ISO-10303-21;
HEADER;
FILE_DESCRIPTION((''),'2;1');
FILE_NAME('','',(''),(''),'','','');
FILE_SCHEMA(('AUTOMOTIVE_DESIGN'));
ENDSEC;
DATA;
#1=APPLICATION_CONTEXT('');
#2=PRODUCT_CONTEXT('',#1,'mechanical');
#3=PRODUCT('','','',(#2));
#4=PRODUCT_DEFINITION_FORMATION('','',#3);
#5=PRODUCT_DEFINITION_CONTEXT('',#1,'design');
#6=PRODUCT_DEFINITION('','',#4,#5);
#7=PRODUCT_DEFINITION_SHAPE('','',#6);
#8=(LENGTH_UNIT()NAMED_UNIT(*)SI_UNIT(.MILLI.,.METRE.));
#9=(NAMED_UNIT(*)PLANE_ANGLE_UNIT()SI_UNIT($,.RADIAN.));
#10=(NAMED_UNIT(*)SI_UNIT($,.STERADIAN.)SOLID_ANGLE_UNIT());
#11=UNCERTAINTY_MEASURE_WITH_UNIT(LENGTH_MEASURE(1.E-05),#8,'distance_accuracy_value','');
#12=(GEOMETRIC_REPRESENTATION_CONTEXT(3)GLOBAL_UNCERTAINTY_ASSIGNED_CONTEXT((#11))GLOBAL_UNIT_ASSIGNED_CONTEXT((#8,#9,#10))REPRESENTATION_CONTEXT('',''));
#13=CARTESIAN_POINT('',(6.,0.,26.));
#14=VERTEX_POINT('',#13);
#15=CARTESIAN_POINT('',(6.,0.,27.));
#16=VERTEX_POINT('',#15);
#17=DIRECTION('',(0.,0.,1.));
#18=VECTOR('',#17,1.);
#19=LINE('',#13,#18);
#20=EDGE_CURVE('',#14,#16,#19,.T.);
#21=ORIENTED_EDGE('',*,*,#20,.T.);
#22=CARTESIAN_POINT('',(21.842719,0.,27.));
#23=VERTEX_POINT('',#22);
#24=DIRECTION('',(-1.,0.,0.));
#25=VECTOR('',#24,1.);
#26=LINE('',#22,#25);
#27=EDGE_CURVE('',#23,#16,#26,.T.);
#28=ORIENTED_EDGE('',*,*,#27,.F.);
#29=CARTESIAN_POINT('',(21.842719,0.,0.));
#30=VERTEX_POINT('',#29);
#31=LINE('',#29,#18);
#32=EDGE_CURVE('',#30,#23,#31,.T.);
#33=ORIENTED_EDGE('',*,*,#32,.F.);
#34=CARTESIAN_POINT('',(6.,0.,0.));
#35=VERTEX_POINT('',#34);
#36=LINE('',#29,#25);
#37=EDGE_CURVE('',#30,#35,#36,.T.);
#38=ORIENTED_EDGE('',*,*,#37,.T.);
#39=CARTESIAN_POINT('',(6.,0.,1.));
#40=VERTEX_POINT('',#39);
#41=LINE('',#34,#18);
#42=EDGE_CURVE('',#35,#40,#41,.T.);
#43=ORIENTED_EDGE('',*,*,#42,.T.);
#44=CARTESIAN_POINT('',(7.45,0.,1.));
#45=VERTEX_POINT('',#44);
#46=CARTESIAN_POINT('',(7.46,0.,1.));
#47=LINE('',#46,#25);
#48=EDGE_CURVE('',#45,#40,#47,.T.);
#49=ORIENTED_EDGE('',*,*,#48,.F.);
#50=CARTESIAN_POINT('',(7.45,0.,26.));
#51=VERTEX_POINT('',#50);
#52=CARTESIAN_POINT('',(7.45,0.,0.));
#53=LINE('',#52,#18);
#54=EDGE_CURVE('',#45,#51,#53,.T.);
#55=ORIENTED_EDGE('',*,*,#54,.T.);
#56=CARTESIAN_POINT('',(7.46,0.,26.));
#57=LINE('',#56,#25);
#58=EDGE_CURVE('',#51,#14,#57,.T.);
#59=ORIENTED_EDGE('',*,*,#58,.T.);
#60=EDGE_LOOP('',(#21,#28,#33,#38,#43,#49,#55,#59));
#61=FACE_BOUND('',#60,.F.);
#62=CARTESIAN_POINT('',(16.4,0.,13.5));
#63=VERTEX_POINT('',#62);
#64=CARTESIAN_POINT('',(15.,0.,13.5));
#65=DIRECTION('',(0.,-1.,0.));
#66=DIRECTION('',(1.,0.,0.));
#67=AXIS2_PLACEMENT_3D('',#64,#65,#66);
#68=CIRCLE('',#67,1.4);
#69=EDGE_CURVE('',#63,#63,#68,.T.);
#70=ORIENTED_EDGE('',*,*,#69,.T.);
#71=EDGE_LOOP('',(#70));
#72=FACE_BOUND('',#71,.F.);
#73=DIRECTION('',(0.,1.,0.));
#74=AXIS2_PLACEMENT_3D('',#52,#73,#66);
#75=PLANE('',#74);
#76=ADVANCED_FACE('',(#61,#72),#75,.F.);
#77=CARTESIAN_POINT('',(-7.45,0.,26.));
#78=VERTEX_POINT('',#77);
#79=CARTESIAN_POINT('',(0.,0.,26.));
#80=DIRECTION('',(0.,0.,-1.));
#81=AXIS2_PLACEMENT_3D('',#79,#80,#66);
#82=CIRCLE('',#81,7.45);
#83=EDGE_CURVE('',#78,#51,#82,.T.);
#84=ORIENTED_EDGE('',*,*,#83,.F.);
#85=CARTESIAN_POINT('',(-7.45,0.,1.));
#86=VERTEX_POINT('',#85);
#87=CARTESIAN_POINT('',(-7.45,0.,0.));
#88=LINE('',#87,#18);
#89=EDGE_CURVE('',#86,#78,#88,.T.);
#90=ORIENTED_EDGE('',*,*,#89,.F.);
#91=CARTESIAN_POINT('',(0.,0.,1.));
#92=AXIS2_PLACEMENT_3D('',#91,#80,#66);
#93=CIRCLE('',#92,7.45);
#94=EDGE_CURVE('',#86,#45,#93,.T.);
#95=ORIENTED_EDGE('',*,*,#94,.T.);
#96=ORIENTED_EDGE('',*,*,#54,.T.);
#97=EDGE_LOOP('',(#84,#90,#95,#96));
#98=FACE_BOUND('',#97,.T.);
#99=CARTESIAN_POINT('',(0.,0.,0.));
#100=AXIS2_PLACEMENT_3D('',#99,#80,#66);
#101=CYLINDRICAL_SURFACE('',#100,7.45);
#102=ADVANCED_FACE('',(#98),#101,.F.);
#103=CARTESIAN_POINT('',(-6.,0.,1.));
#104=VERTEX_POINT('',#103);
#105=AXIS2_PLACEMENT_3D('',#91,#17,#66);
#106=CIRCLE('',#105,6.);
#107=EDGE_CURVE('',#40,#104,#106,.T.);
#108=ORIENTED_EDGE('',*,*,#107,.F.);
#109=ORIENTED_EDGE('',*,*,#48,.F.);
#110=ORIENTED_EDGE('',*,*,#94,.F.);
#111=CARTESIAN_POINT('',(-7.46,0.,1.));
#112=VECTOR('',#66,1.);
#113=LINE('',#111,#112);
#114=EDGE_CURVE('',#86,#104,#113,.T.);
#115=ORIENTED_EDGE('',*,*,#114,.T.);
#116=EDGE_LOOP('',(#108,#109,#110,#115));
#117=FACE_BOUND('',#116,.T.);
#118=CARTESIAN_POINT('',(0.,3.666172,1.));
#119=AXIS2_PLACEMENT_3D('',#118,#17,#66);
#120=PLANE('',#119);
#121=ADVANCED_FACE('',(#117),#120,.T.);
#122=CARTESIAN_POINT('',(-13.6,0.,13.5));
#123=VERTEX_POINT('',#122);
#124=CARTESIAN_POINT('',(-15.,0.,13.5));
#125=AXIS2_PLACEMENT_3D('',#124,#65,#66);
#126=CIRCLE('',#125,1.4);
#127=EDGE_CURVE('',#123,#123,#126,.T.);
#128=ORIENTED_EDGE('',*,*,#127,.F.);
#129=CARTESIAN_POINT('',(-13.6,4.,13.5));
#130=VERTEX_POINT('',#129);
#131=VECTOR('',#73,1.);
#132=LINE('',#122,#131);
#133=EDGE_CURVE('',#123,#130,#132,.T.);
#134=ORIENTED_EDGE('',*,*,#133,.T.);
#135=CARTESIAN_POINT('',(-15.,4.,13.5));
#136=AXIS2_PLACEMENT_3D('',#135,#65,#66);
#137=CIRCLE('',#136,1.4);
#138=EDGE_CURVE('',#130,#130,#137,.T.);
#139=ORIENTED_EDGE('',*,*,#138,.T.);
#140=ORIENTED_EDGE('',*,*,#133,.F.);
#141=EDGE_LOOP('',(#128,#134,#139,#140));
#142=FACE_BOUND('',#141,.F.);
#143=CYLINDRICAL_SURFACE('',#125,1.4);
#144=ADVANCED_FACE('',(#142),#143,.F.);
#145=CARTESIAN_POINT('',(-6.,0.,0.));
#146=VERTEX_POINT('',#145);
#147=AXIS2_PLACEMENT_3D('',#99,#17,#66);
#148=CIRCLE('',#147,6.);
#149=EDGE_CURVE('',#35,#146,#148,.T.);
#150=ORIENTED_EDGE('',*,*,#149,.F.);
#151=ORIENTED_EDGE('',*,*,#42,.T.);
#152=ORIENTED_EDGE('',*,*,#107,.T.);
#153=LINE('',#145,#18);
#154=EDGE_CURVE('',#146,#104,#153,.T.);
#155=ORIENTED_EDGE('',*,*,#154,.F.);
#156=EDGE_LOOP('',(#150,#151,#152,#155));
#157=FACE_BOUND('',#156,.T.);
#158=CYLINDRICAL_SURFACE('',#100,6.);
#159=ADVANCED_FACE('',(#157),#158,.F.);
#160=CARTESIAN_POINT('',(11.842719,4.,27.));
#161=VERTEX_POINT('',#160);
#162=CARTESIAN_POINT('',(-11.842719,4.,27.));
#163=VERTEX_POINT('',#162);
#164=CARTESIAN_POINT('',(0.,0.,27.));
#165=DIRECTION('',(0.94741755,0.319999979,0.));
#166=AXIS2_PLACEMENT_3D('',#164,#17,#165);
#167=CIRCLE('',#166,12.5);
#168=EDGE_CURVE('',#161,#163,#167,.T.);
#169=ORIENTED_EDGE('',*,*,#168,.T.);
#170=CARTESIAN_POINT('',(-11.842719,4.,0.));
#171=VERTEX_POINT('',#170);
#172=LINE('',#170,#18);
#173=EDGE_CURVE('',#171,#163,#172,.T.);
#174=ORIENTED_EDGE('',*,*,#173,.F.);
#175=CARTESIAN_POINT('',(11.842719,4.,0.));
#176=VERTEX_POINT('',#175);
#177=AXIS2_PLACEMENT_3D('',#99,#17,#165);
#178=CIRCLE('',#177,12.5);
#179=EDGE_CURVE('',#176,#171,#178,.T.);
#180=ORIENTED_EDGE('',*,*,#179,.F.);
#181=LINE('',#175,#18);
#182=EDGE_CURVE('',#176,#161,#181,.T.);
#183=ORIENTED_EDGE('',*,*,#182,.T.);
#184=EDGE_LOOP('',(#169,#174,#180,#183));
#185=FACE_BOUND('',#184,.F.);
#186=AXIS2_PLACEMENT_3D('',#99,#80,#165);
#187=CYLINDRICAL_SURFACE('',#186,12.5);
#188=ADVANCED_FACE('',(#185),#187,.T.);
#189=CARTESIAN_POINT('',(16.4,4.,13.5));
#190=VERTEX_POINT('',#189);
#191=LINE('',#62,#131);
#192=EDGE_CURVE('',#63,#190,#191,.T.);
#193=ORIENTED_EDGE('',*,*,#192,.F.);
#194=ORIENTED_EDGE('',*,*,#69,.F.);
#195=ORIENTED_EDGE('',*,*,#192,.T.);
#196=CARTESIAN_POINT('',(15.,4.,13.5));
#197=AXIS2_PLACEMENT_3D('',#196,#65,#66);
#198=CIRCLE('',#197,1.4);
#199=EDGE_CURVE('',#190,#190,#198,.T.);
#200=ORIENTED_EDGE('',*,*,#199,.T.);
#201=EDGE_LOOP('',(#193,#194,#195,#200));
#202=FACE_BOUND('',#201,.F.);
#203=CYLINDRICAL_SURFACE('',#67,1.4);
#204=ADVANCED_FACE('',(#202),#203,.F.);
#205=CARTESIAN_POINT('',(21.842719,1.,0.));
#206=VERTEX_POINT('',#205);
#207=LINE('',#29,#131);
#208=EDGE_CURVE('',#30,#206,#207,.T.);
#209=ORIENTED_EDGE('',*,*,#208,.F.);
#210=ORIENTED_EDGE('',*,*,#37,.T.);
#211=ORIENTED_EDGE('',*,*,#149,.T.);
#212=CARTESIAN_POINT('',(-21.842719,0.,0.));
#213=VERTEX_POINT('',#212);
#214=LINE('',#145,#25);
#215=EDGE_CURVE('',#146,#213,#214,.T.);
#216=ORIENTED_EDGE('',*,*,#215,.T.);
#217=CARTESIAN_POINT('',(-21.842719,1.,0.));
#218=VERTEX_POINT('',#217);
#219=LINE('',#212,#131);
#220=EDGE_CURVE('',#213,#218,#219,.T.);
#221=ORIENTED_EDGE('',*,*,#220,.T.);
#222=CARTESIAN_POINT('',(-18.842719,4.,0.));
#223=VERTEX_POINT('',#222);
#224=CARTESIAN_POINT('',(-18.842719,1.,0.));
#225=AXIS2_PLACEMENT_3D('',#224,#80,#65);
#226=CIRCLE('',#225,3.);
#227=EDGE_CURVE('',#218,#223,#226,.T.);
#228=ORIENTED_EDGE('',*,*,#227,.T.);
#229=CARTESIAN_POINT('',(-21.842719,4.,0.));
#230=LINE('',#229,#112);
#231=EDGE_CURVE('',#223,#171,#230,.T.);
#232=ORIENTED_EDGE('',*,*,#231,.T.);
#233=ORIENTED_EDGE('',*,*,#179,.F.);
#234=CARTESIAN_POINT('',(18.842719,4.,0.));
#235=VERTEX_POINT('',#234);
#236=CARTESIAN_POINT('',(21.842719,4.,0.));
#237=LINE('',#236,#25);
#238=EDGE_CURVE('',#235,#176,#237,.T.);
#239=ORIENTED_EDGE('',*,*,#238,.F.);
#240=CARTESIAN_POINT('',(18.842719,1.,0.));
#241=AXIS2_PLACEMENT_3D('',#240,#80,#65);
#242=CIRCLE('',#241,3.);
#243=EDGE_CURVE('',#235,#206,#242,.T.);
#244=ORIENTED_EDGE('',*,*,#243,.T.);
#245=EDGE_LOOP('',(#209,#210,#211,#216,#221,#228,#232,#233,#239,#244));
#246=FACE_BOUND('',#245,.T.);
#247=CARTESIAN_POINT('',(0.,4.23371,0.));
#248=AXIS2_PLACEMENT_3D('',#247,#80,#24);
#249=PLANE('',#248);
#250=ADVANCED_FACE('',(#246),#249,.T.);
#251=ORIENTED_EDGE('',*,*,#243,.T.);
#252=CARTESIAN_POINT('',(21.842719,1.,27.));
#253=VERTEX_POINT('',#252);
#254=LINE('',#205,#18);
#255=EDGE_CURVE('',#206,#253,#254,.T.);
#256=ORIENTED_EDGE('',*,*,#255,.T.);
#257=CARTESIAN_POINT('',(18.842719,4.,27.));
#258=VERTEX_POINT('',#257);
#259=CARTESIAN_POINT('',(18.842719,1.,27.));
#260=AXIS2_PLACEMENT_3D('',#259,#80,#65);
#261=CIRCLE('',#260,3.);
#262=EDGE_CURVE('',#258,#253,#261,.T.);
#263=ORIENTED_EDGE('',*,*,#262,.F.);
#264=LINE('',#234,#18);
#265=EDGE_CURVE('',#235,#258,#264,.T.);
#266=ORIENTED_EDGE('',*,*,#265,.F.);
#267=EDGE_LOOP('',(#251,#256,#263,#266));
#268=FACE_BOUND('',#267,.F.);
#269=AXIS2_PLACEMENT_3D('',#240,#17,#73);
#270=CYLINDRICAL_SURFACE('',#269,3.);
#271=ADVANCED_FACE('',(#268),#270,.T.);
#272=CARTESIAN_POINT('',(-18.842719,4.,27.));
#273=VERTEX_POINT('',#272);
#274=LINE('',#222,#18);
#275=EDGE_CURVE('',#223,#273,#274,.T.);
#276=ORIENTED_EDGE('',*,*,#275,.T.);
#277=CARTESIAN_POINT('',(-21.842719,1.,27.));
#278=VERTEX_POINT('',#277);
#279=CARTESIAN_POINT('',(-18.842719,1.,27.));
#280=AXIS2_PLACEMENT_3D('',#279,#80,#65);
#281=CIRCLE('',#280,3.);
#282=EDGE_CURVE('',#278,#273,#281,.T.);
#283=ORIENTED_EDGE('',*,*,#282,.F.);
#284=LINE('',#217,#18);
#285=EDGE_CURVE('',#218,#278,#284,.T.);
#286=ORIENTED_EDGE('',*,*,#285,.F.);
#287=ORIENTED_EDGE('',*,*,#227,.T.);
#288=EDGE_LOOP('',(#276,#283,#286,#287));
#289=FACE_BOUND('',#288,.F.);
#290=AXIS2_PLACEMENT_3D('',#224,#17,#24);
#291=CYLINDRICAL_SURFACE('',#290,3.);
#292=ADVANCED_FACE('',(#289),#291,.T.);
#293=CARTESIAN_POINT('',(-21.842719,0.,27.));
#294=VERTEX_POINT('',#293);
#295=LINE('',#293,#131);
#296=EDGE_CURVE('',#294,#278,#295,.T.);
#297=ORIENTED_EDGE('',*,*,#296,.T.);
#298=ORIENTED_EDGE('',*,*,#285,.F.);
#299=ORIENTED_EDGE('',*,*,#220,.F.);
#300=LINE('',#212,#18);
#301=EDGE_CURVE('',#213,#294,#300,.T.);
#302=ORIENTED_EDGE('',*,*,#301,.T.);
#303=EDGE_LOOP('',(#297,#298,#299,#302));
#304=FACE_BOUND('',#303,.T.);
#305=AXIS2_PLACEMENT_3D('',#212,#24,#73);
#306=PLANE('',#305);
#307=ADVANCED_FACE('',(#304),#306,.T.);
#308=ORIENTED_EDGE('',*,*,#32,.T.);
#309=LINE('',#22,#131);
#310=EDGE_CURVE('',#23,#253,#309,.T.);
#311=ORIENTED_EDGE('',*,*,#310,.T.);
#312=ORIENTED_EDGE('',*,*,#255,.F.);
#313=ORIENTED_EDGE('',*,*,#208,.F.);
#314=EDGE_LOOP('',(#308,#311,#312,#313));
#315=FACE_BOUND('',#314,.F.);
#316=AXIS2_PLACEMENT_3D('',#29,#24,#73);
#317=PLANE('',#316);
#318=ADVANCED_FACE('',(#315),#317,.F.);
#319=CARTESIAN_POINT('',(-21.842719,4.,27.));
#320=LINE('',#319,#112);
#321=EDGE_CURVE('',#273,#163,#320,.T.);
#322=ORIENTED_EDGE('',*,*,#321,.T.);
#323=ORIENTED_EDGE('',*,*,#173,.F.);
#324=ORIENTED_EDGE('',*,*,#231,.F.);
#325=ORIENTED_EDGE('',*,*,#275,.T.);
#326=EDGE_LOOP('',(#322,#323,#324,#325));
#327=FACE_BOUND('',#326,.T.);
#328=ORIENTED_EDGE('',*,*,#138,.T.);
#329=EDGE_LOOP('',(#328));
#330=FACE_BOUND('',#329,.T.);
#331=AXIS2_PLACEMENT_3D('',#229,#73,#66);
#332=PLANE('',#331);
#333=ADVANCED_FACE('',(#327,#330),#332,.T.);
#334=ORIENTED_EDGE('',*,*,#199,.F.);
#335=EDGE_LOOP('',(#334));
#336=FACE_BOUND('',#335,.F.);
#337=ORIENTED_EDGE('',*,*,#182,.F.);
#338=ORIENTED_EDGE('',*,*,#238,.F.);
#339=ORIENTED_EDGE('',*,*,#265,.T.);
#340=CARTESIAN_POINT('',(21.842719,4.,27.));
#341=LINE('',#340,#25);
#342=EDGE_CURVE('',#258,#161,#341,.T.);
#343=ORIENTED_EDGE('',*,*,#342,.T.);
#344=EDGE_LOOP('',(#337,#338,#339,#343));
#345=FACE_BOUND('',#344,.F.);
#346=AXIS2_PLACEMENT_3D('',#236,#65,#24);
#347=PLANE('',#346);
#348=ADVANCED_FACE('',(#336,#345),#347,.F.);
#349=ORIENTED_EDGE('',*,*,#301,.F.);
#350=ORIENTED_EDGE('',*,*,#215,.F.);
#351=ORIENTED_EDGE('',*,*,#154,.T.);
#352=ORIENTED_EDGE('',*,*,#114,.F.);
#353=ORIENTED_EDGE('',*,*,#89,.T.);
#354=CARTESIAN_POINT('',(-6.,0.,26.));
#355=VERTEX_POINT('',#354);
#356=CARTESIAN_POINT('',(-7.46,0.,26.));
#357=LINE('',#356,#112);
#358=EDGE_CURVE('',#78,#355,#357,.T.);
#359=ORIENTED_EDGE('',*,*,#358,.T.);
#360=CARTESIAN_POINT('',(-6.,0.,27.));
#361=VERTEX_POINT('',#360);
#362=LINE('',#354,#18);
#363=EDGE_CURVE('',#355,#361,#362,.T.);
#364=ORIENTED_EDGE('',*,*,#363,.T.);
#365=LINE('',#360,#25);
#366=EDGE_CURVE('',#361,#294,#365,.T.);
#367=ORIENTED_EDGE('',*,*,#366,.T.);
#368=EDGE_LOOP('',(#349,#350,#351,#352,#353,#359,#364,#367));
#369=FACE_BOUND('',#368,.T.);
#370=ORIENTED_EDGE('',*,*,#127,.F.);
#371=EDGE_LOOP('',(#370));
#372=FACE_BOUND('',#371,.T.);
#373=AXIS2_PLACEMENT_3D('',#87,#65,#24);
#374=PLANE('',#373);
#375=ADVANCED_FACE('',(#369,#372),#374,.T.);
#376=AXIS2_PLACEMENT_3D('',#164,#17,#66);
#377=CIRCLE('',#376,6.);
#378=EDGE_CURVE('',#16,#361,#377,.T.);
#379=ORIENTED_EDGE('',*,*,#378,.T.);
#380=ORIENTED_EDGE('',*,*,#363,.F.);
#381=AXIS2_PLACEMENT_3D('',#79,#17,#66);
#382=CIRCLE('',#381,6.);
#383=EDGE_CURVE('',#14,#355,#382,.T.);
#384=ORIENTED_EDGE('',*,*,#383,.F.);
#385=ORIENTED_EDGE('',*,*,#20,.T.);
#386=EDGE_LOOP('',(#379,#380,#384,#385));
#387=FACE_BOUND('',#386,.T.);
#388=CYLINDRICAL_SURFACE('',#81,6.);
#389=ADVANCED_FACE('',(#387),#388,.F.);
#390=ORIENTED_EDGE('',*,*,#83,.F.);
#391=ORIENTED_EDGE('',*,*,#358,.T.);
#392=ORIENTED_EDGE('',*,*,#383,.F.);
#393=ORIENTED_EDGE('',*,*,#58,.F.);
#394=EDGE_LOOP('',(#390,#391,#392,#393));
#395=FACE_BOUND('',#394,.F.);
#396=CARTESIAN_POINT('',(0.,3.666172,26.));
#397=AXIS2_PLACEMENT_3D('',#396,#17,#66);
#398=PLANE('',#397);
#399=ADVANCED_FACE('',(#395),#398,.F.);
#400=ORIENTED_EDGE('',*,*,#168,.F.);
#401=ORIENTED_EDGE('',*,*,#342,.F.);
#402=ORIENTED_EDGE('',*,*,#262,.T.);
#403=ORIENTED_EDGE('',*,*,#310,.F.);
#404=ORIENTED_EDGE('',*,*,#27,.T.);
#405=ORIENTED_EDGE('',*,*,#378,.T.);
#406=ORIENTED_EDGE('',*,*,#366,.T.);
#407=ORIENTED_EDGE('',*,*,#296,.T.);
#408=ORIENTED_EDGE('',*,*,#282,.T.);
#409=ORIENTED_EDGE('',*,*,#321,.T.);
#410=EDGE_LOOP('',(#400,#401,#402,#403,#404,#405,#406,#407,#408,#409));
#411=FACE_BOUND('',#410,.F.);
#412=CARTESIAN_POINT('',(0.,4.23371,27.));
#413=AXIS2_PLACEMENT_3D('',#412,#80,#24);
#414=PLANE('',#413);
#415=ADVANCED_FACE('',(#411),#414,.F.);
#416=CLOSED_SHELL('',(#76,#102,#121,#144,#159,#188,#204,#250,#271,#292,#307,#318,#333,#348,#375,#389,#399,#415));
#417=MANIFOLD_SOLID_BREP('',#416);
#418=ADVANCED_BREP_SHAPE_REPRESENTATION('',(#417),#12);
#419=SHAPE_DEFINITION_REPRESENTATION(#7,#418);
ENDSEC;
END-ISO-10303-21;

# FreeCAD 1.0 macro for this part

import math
import FreeCAD as App
import Part
import Sketcher


def edges_at(feature, points):
    """Names of the edges that pass closest to the given points."""
    edges = feature.Shape.Edges
    near = lambda p: min(range(len(edges)), key=lambda i: edges[i].distToShape(Part.Vertex(*p))[0])
    return sorted({f"Edge{near(p) + 1}" for p in points})

doc = App.newDocument("Part")
body = doc.addObject("PartDesign::Body", "Body")
body.AllowCompound = True

sketch1 = body.newObject("Sketcher::SketchObject", "Sketch")
sketch1.AttachmentSupport = (doc.getObject("XZ_Plane"), [""])
sketch1.MapMode = "FlatFace"
sketch1.addGeometry([
    Part.Circle(App.Vector(-15, 13.5, 0), App.Vector(0, 0, 1), 1.4),
    Part.Circle(App.Vector(15, 13.5, 0), App.Vector(0, 0, 1), 1.4),
], False)
sketch1.addConstraint([
    Sketcher.Constraint("Equal", 0, 1),
    Sketcher.Constraint("Symmetric", 0, 3, 1, 3, -2),
    Sketcher.Constraint("Diameter", 0, 2.8),
    Sketcher.Constraint("DistanceX", 0, 3, -1, 1, 15.0),
    Sketcher.Constraint("DistanceY", -1, 1, 0, 3, 13.5),
])
pad1 = body.newObject("PartDesign::Pad", "Pad")
pad1.Profile = sketch1
pad1.Length = 4
pad1.Reversed = True
body2 = doc.addObject("PartDesign::Body", "Body001")

sketch2 = body2.newObject("Sketcher::SketchObject", "Sketch001")
sketch2.AttachmentSupport = (doc.getObject("XY_Plane001"), [""])
sketch2.MapMode = "FlatFace"
sketch2.addGeometry([
    Part.ArcOfCircle(Part.Circle(App.Vector(0, 0, 0), App.Vector(0, 0, 1), 7.5), math.radians(0), math.radians(180)),
    Part.LineSegment(App.Vector(7.5, 0, 0), App.Vector(21.8, 0, 0)),
    Part.LineSegment(App.Vector(21.8, 0, 0), App.Vector(21.8, 4, 0)),
    Part.LineSegment(App.Vector(21.8, 4, 0), App.Vector(11.8, 4, 0)),
    Part.ArcOfCircle(Part.Circle(App.Vector(0, 0, 0), App.Vector(0, 0, 1), 12.5), math.radians(19), math.radians(161)),
    Part.LineSegment(App.Vector(-11.8, 4, 0), App.Vector(-21.8, 4, 0)),
    Part.LineSegment(App.Vector(-21.8, 4, 0), App.Vector(-21.8, 0, 0)),
    Part.LineSegment(App.Vector(-21.8, 0, 0), App.Vector(-7.5, 0, 0)),
], False)
sketch2.addConstraint([
    Sketcher.Constraint("Coincident", 0, 1, 1, 1),
    Sketcher.Constraint("Coincident", 1, 2, 2, 1),
    Sketcher.Constraint("Coincident", 2, 2, 3, 1),
    Sketcher.Constraint("Coincident", 3, 2, 4, 1),
    Sketcher.Constraint("Coincident", 4, 2, 5, 1),
    Sketcher.Constraint("Coincident", 5, 2, 6, 1),
    Sketcher.Constraint("Coincident", 6, 2, 7, 1),
    Sketcher.Constraint("Coincident", 7, 2, 0, 2),
    Sketcher.Constraint("Horizontal", 1),
    Sketcher.Constraint("Vertical", 2),
    Sketcher.Constraint("Horizontal", 3),
    Sketcher.Constraint("Horizontal", 5),
    Sketcher.Constraint("Vertical", 6),
    Sketcher.Constraint("Horizontal", 7),
    Sketcher.Constraint("Coincident", 0, 3, -1, 1),
    Sketcher.Constraint("Coincident", 4, 3, -1, 1),
    Sketcher.Constraint("Symmetric", 1, 2, 6, 2, -1, 1),
    Sketcher.Constraint("PointOnObject", 0, 1, -1),
    Sketcher.Constraint("Horizontal", 3, 2, 4, 2),
    Sketcher.Constraint("Radius", 4, 12.5),
    Sketcher.Constraint("DistanceX", 3, 2, 3, 1, 10.0),
    Sketcher.Constraint("DistanceY", 2, 1, 2, 2, 4.0),
    Sketcher.Constraint("Radius", 0, 7.45),
])
pad2 = body2.newObject("PartDesign::Pad", "Pad001")
pad2.Profile = sketch2
pad2.Length = 27
body3 = doc.addObject("PartDesign::Body", "Body002")

sketch3 = body3.newObject("Sketcher::SketchObject", "Sketch002")
sketch3.AttachmentSupport = (doc.getObject("XY_Plane002"), [""])
sketch3.MapMode = "FlatFace"
sketch3.addGeometry([
    Part.ArcOfCircle(Part.Circle(App.Vector(0, 0, 0), App.Vector(0, 0, 1), 7.5), math.radians(0), math.radians(180)),
    Part.LineSegment(App.Vector(-7.5, 0, 0), App.Vector(-6, 0, 0)),
    Part.ArcOfCircle(Part.Circle(App.Vector(0, 0, 0), App.Vector(0, 0, 1), 6), math.radians(0), math.radians(180)),
    Part.LineSegment(App.Vector(6, 0, 0), App.Vector(7.5, 0, 0)),
], False)
sketch3.addConstraint([
    Sketcher.Constraint("Coincident", 0, 2, 1, 1),
    Sketcher.Constraint("Coincident", 1, 2, 2, 2),
    Sketcher.Constraint("Coincident", 2, 1, 3, 1),
    Sketcher.Constraint("Coincident", 3, 2, 0, 1),
    Sketcher.Constraint("Horizontal", 1),
    Sketcher.Constraint("Horizontal", 3),
    Sketcher.Constraint("Coincident", 0, 3, -1, 1),
    Sketcher.Constraint("Coincident", 2, 3, -1, 1),
    Sketcher.Constraint("PointOnObject", 0, 2, -1),
    Sketcher.Constraint("PointOnObject", 2, 1, -1),
    Sketcher.Constraint("Radius", 2, 6.0),
    Sketcher.Constraint("Radius", 0, 7.46),
])
pad3 = body3.newObject("PartDesign::Pad", "Pad002")
pad3.Profile = sketch3
pad3.Length = 1
body4 = doc.addObject("PartDesign::Body", "Body003")

sketch4 = body4.newObject("Sketcher::SketchObject", "Sketch003")
sketch4.AttachmentSupport = (doc.getObject("XY_Plane003"), [""])
sketch4.MapMode = "FlatFace"
sketch4.AttachmentOffset = App.Placement(App.Vector(0, 0, 26), App.Rotation())
sketch4.addGeometry([
    Part.ArcOfCircle(Part.Circle(App.Vector(0, 0, 0), App.Vector(0, 0, 1), 7.5), math.radians(0), math.radians(180)),
    Part.LineSegment(App.Vector(-7.5, 0, 0), App.Vector(-6, 0, 0)),
    Part.ArcOfCircle(Part.Circle(App.Vector(0, 0, 0), App.Vector(0, 0, 1), 6), math.radians(0), math.radians(180)),
    Part.LineSegment(App.Vector(6, 0, 0), App.Vector(7.5, 0, 0)),
], False)
sketch4.addConstraint([
    Sketcher.Constraint("Coincident", 0, 2, 1, 1),
    Sketcher.Constraint("Coincident", 1, 2, 2, 2),
    Sketcher.Constraint("Coincident", 2, 1, 3, 1),
    Sketcher.Constraint("Coincident", 3, 2, 0, 1),
    Sketcher.Constraint("Horizontal", 1),
    Sketcher.Constraint("Horizontal", 3),
    Sketcher.Constraint("Coincident", 0, 3, -1, 1),
    Sketcher.Constraint("Coincident", 2, 3, -1, 1),
    Sketcher.Constraint("PointOnObject", 0, 2, -1),
    Sketcher.Constraint("PointOnObject", 2, 1, -1),
    Sketcher.Constraint("Radius", 2, 6.0),
    Sketcher.Constraint("Radius", 0, 7.46),
])
pad4 = body4.newObject("PartDesign::Pad", "Pad003")
pad4.Profile = sketch4
pad4.Length = 1
doc.recompute()

boolean = body4.newObject("PartDesign::Boolean", "Boolean")
boolean.Type = "Fuse"
boolean.addObjects([body2])
doc.recompute()

boolean2 = body4.newObject("PartDesign::Boolean", "Boolean001")
boolean2.Type = "Fuse"
boolean2.addObjects([body3])
doc.recompute()

boolean3 = body4.newObject("PartDesign::Boolean", "Boolean002")
boolean3.Type = "Cut"
boolean3.addObjects([body])
doc.recompute()

fillet = body4.newObject("PartDesign::Fillet", "Fillet")
fillet.Base = (boolean3, edges_at(boolean3, [(21.843, 4, 13.5), (-21.843, 4, 13.5)]))
fillet.Radius = 3

doc.recompute()
